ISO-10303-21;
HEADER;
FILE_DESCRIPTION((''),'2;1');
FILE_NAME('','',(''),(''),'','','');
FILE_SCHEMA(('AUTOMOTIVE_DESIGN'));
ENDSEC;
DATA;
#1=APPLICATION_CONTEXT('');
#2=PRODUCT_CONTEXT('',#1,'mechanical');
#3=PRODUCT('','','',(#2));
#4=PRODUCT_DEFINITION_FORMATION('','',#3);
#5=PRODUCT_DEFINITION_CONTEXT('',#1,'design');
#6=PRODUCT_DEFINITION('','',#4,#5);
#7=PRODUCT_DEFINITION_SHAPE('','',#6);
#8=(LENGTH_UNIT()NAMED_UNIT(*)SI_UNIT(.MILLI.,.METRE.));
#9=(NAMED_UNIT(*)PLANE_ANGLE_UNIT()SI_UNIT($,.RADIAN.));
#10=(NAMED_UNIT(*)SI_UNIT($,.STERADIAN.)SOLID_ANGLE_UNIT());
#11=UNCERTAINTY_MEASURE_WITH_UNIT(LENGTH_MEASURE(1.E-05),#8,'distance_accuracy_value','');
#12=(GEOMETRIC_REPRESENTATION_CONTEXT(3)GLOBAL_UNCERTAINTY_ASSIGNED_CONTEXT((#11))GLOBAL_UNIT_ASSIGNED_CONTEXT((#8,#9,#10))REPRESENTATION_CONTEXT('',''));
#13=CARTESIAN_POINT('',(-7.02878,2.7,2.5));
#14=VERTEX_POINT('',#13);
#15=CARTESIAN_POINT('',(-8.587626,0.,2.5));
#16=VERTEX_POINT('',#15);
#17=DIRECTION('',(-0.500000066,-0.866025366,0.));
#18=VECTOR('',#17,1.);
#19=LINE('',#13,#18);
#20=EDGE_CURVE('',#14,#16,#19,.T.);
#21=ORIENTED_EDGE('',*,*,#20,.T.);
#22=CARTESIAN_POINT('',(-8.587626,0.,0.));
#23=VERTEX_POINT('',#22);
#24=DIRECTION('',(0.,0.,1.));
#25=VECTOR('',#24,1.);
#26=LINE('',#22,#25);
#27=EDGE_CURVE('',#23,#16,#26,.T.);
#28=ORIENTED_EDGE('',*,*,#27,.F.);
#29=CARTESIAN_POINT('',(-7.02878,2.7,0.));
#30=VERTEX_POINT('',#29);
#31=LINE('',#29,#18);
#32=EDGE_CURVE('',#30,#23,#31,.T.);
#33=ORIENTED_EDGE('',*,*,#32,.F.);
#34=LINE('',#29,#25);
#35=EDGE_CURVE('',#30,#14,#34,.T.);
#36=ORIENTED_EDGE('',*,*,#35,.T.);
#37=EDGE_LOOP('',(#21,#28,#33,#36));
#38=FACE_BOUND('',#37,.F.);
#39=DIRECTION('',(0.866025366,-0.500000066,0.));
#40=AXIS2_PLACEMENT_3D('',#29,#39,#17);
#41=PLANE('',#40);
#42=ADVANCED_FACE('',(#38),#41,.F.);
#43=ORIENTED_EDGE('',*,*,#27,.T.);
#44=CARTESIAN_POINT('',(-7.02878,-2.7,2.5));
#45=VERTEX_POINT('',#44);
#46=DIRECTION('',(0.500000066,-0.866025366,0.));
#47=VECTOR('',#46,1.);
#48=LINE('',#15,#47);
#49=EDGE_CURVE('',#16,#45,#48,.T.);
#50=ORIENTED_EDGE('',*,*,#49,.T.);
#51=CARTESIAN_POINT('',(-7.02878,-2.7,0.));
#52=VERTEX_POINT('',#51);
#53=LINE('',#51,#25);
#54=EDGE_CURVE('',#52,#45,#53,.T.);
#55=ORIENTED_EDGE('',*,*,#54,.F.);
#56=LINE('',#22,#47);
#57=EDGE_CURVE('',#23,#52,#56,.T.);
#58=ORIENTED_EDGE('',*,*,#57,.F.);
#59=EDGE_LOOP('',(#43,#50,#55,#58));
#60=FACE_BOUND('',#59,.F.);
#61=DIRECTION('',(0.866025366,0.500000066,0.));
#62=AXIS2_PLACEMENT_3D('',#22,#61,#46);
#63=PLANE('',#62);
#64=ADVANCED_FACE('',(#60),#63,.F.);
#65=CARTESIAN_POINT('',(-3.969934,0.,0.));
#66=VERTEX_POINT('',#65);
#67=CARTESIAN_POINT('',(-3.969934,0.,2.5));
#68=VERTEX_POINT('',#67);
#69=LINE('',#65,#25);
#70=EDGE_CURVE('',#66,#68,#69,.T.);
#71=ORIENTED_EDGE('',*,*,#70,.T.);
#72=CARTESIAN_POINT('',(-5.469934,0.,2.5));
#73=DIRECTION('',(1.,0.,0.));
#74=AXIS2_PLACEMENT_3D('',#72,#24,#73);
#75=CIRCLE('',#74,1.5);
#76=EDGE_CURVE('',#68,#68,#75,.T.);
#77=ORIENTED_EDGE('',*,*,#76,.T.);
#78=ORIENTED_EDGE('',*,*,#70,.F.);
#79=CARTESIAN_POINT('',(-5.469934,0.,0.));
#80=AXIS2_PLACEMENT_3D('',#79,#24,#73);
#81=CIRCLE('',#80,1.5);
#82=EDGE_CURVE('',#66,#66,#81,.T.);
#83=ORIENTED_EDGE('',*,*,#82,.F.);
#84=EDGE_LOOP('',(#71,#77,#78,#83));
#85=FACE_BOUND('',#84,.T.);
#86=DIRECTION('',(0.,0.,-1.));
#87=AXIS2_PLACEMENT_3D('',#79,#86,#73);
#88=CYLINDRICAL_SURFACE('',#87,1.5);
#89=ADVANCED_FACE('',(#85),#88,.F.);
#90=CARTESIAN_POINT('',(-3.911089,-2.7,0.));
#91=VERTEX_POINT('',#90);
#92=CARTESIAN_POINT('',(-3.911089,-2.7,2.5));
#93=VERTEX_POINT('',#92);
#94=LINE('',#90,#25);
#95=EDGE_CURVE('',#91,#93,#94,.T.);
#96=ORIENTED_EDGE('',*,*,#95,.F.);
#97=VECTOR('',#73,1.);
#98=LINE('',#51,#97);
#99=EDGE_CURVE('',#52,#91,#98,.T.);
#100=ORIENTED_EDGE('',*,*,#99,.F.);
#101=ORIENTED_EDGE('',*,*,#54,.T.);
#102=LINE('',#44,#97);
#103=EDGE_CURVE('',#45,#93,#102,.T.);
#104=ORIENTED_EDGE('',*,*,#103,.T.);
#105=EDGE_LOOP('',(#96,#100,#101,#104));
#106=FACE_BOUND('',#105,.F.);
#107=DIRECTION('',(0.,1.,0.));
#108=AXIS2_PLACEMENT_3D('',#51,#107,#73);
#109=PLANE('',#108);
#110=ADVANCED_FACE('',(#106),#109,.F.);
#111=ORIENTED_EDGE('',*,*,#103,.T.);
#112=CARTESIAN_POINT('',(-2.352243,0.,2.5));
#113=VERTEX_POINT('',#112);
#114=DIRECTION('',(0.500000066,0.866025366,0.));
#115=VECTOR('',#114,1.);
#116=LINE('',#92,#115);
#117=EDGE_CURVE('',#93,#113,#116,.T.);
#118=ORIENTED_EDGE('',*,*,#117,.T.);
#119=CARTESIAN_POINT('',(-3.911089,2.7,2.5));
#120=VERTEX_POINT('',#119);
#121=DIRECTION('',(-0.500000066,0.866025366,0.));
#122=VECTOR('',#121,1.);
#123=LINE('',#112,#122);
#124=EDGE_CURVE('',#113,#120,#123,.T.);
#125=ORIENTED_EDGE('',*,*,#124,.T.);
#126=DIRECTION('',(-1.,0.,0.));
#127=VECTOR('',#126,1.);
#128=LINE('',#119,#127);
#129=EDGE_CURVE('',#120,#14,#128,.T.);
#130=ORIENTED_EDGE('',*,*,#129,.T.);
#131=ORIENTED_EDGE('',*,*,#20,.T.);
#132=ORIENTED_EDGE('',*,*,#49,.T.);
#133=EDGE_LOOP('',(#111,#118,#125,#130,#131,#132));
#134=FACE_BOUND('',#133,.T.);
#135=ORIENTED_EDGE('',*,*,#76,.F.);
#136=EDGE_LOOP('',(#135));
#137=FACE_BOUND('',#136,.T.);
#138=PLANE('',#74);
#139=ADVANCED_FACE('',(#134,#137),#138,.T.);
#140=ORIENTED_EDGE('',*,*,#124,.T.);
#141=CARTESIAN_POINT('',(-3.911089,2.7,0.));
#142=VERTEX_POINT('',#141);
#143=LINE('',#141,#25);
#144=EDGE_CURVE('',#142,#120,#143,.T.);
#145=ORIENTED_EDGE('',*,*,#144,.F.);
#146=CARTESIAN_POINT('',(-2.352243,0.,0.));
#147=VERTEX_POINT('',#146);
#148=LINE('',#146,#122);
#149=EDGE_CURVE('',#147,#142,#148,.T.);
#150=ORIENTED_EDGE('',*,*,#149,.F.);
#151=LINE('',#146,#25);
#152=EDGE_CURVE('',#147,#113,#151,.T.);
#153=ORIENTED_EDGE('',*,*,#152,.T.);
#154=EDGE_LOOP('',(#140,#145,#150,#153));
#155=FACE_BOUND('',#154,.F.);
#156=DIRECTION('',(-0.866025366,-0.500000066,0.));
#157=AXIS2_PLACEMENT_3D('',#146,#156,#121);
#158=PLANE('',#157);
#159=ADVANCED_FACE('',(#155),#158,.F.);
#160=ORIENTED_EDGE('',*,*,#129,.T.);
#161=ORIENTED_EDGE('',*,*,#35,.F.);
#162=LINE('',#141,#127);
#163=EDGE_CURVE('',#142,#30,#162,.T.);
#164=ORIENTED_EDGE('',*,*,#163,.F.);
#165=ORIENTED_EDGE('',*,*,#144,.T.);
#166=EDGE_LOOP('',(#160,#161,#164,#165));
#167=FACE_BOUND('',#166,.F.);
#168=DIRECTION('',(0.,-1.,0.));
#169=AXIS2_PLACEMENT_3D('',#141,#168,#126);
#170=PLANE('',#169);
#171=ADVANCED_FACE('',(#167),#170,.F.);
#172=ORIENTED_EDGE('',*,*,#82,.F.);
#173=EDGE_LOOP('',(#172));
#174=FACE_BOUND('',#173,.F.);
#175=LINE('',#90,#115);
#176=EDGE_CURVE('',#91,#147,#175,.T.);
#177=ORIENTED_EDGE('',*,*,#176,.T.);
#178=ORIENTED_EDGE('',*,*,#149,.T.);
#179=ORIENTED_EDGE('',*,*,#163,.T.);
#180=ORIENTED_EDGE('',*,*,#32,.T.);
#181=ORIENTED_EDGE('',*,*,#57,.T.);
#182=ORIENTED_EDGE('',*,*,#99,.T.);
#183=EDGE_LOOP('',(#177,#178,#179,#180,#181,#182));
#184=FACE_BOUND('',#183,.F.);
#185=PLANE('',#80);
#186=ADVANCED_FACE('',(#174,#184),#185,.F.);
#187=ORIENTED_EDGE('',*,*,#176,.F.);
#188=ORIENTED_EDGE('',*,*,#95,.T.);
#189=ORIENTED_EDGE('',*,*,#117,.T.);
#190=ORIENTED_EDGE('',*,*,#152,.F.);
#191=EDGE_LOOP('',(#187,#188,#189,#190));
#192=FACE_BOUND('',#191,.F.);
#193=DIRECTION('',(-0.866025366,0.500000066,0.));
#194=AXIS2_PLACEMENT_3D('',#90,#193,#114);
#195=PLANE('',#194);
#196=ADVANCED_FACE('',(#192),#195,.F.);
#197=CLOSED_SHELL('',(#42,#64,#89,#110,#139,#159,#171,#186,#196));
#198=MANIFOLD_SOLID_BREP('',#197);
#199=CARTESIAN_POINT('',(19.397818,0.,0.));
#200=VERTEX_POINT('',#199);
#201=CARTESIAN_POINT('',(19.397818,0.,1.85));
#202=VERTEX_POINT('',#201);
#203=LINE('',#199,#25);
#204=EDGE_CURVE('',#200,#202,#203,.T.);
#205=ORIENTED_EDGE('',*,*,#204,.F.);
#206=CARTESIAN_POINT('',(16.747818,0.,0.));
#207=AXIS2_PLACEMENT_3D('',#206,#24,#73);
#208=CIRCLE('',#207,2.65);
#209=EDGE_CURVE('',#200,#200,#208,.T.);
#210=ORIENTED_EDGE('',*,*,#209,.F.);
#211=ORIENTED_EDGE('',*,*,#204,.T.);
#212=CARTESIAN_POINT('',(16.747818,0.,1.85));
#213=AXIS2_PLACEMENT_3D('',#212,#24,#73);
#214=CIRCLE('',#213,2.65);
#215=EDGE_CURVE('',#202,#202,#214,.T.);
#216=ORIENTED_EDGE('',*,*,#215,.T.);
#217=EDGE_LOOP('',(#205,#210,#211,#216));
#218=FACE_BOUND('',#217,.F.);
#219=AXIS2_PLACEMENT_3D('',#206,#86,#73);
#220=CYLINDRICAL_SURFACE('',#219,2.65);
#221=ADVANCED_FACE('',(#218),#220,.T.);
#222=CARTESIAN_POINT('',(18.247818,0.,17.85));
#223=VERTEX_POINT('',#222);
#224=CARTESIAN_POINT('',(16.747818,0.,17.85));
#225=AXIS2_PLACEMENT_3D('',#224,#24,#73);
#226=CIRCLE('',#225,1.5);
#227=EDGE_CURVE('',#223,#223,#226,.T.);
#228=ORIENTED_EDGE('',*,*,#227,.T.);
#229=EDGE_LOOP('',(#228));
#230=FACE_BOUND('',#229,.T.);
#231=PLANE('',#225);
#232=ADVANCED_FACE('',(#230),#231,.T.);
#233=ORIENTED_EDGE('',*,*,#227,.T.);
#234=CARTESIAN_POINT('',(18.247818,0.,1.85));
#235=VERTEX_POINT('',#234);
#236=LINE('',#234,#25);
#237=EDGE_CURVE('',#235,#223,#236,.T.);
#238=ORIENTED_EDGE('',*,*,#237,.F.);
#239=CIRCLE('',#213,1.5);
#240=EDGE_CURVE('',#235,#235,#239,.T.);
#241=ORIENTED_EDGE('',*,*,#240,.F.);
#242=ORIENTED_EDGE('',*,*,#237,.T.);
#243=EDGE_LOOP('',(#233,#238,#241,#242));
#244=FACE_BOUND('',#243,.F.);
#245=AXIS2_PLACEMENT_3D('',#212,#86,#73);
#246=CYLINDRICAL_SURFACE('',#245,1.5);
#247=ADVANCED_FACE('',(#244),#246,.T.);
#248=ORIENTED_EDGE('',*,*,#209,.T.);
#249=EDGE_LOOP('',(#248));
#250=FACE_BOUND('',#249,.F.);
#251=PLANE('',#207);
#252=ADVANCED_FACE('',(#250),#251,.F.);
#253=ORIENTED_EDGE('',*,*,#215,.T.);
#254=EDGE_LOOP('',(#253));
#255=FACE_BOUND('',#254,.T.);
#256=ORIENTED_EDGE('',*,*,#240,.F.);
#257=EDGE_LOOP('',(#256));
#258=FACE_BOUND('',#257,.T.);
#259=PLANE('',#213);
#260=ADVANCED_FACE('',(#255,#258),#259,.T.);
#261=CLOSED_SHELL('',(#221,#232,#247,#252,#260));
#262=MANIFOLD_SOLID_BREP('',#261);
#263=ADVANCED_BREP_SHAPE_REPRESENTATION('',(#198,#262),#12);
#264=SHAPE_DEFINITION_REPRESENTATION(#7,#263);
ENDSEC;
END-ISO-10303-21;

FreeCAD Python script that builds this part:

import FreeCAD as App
import Part
import Sketcher
from FreeCAD import Vector
Q = App.Units.Quantity

doc = App.newDocument("Part")
body = doc.addObject("PartDesign::Body", "Body")

# Sketch on XY plane
sketch1 = body.newObject("Sketcher::SketchObject", "Sketch")
sketch1.AttachmentSupport = (doc.getObject("XY_Plane"), [""])
sketch1.MapMode = "FlatFace"
sketch1.addGeometry(Part.LineSegment(Vector(-3.9, 2.7, 0), Vector(-7, 2.7, 0)), False)
sketch1.addGeometry(Part.LineSegment(Vector(-7, 2.7, 0), Vector(-8.6, 0, 0)), False)
sketch1.addGeometry(Part.LineSegment(Vector(-8.6, 0, 0), Vector(-7, -2.7, 0)), False)
sketch1.addGeometry(Part.LineSegment(Vector(-7, -2.7, 0), Vector(-3.9, -2.7, 0)), False)
sketch1.addGeometry(Part.LineSegment(Vector(-3.9, -2.7, 0), Vector(-2.4, 0, 0)), False)
sketch1.addGeometry(Part.LineSegment(Vector(-2.4, 0, 0), Vector(-3.9, 2.7, 0)), False)
sketch1.addGeometry(Part.Circle(Vector(-5.5, 0, 0), Vector(0, 0, 1), 1.5), False)
sketch1.addConstraint(Sketcher.Constraint("Coincident", 0, 2, 1, 1))
sketch1.addConstraint(Sketcher.Constraint("Coincident", 1, 2, 2, 1))
sketch1.addConstraint(Sketcher.Constraint("Coincident", 2, 2, 3, 1))
sketch1.addConstraint(Sketcher.Constraint("Coincident", 3, 2, 4, 1))
sketch1.addConstraint(Sketcher.Constraint("Coincident", 4, 2, 5, 1))
sketch1.addConstraint(Sketcher.Constraint("Coincident", 5, 2, 0, 1))
sketch1.addConstraint(Sketcher.Constraint("Horizontal", 0))
sketch1.addConstraint(Sketcher.Constraint("Horizontal", 3))
sketch1.addConstraint(Sketcher.Constraint("Symmetric", 0, 2, 2, 2, -1))
sketch1.addConstraint(Sketcher.Constraint("PointOnObject", 6, 3, -1))
sketch1.addConstraint(Sketcher.Constraint("PointOnObject", 1, 2, -1))
sketch1.addConstraint(Sketcher.Constraint("PointOnObject", 4, 2, -1))
sketch1.addConstraint(Sketcher.Constraint("Parallel", 1, 4))
sketch1.addConstraint(Sketcher.Constraint("Parallel", 2, 5))
sketch1.addConstraint(Sketcher.Constraint("Diameter", 6, Q("3 mm")))
sketch1.addConstraint(Sketcher.Constraint("Angle", 1, Q("-120.000004 deg")))
sketch1.addConstraint(Sketcher.Constraint("DistanceY", -1, 1, 0, 2, Q("2.7 mm")))
sketch1.addConstraint(Sketcher.Constraint("DistanceX", 0, 2, 0, 1, Q("3.117691 mm")))
sketch1.addConstraint(Sketcher.Constraint("DistanceX", 0, 2, -1, 1, Q("7.02878 mm")))
sketch1.addConstraint(Sketcher.Constraint("DistanceX", 1, 2, 6, 3, Q("3.117692 mm")))
pad1 = body.newObject("PartDesign::Pad", "Pad")
pad1.Profile = sketch1
pad1.Length = 2.5
body2 = doc.addObject("PartDesign::Body", "Body001")

# Sketch on XY plane
sketch2 = body2.newObject("Sketcher::SketchObject", "Sketch001")
sketch2.AttachmentSupport = (doc.getObject("XY_Plane001"), [""])
sketch2.MapMode = "FlatFace"
sketch2.addGeometry(Part.Circle(Vector(16.7, 0, 0), Vector(0, 0, 1), 2.6), False)
sketch2.addConstraint(Sketcher.Constraint("PointOnObject", 0, 3, -1))
sketch2.addConstraint(Sketcher.Constraint("Diameter", 0, Q("5.3 mm")))
sketch2.addConstraint(Sketcher.Constraint("DistanceX", -1, 1, 0, 3, Q("16.747818 mm")))
pad2 = body2.newObject("PartDesign::Pad", "Pad001")
pad2.Profile = sketch2
pad2.Length = 1.85

# Sketch on XY plane
sketch3 = body2.newObject("Sketcher::SketchObject", "Sketch002")
sketch3.AttachmentSupport = (doc.getObject("XY_Plane001"), [""])
sketch3.MapMode = "FlatFace"
sketch3.AttachmentOffset = App.Placement(Vector(0, 0, 1.85), App.Rotation())
sketch3.addGeometry(Part.Circle(Vector(16.7, 0, 0), Vector(0, 0, 1), 1.5), False)
sketch3.addConstraint(Sketcher.Constraint("PointOnObject", 0, 3, -1))
sketch3.addConstraint(Sketcher.Constraint("Diameter", 0, Q("3 mm")))
sketch3.addConstraint(Sketcher.Constraint("DistanceX", -1, 1, 0, 3, Q("16.747818 mm")))
pad3 = body2.newObject("PartDesign::Pad", "Pad002")
pad3.Profile = sketch3
pad3.Length = 16

doc.recompute()
